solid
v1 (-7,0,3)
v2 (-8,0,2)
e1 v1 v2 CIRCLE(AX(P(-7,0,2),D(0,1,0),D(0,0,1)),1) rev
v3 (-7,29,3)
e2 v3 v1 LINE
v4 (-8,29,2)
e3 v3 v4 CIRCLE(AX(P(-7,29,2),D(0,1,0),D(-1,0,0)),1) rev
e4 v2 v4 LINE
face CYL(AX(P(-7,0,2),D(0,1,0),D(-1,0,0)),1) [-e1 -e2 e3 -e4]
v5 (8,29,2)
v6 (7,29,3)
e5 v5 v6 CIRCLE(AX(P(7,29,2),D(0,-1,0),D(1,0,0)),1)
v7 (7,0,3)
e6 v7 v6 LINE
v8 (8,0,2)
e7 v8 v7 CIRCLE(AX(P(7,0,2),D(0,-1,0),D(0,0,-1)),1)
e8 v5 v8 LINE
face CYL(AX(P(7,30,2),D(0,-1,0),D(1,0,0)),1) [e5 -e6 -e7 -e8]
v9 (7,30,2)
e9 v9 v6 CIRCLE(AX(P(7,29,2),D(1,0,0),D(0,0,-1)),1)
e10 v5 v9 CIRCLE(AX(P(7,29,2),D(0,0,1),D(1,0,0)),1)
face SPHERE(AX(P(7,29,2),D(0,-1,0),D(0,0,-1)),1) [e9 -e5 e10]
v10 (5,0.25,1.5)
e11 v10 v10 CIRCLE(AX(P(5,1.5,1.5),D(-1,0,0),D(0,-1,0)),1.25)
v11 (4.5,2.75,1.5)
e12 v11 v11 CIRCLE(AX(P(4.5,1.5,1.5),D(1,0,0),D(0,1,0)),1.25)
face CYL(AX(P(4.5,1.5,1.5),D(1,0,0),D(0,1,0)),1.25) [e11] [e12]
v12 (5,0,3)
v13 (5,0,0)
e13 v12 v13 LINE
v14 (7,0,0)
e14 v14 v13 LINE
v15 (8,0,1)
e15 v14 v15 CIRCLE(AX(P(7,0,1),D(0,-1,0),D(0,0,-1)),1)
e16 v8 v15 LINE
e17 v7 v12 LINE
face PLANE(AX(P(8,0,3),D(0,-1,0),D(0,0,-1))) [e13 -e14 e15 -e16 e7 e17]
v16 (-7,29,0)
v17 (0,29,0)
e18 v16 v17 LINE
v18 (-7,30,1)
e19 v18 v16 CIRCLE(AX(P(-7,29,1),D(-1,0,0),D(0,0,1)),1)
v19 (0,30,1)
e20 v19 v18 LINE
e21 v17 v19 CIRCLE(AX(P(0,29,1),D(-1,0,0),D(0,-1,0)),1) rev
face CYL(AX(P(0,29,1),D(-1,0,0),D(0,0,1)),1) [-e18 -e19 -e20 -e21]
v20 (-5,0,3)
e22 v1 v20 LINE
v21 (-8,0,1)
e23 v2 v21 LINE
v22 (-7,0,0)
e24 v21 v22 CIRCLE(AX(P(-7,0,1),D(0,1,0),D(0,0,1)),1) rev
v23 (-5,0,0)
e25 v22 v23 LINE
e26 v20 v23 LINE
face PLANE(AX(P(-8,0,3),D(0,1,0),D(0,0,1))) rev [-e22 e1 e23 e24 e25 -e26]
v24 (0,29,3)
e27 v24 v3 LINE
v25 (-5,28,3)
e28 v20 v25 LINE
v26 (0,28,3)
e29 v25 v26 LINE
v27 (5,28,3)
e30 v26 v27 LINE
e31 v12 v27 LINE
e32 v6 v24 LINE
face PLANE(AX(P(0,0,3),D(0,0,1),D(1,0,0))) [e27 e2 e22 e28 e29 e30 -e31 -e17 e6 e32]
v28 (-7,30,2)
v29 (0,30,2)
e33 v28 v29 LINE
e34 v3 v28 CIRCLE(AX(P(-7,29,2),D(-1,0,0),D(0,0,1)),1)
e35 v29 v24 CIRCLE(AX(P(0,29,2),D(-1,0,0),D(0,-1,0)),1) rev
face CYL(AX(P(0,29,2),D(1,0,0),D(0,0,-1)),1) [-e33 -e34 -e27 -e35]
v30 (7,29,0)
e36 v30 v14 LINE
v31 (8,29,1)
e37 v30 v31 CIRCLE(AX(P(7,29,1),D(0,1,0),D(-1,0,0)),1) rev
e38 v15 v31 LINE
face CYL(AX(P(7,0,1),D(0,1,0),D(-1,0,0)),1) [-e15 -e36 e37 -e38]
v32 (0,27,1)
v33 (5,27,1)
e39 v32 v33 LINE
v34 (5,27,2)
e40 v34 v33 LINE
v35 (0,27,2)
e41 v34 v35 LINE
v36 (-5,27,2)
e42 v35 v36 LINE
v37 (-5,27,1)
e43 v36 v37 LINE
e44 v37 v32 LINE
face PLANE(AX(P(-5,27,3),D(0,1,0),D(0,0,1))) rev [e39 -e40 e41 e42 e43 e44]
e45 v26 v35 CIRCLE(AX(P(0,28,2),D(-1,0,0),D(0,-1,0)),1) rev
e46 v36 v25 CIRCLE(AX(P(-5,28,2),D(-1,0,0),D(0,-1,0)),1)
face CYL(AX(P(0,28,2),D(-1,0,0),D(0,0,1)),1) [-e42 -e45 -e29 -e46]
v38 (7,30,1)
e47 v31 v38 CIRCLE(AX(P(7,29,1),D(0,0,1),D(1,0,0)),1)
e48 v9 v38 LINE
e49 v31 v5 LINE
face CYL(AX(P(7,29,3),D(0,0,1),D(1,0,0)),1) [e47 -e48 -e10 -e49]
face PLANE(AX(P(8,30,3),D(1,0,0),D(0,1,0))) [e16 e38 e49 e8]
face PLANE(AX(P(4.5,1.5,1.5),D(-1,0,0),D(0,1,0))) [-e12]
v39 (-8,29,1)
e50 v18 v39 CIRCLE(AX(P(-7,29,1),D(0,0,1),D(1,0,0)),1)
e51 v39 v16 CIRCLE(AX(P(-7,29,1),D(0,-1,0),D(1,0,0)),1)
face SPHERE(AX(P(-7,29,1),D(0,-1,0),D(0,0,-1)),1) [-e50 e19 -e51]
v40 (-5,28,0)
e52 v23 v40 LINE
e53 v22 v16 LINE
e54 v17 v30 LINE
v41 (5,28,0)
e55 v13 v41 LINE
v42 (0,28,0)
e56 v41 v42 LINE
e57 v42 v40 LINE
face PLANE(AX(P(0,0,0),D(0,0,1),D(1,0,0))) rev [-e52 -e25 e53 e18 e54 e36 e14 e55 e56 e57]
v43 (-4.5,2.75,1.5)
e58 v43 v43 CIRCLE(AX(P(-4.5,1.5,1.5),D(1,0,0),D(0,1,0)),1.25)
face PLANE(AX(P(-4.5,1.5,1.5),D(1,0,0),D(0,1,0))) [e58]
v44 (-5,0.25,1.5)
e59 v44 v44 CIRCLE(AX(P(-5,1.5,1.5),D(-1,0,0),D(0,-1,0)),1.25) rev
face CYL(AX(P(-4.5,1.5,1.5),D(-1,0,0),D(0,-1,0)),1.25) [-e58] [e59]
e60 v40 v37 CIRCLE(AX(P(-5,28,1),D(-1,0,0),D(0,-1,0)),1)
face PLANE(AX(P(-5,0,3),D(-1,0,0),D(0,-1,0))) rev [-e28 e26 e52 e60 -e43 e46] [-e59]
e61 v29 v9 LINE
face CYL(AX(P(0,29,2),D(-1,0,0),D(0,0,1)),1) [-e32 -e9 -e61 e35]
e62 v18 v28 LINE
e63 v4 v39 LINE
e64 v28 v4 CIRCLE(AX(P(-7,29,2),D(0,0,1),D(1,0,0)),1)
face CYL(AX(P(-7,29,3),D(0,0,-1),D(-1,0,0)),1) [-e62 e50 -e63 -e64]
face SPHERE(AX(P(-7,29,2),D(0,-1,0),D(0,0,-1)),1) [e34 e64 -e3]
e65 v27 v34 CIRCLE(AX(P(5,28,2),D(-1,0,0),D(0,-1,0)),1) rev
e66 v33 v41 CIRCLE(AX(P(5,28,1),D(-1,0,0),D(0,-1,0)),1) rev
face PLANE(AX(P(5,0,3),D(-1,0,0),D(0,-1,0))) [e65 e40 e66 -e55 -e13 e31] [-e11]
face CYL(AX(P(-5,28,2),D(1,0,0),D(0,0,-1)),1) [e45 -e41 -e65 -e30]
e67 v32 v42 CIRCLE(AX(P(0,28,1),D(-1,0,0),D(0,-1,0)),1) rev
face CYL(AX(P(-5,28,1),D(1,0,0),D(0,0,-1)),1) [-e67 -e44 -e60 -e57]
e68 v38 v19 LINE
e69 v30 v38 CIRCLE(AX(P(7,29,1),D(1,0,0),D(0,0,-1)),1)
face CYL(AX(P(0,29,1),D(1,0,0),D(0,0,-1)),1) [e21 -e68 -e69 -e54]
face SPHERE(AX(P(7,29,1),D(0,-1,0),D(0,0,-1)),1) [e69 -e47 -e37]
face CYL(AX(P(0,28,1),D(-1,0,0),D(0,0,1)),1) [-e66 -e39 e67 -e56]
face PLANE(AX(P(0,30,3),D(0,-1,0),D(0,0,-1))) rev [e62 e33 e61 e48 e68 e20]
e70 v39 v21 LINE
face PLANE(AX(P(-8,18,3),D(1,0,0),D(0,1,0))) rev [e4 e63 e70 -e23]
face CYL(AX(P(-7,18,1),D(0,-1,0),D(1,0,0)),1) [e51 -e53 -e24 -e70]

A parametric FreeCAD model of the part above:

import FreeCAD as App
import Part
import Sketcher
from FreeCAD import Vector
Q = App.Units.Quantity


def edges_at(feature, points):
    """Names of the edges that pass closest to the given points."""
    edges = feature.Shape.Edges
    near = lambda p: min(range(len(edges)), key=lambda i: edges[i].distToShape(Part.Vertex(*p))[0])
    return sorted({f"Edge{near(p) + 1}" for p in points})

doc = App.newDocument("Part")
params = doc.addObject("Spreadsheet::Sheet", "Params")
for row, (alias, value) in enumerate([
    ("sketch1_width", "8 mm"),
    ("sketch1_width2", "3 mm"),
    ("sketch1_height", "30 mm"),
    ("pad1_length", "3 mm"),
    ("sketch2_diameter", "2.5 mm"),
    ("pad2_length", "0.5 mm"),
    ("fillet_radius", "1 mm"),
    ("fillet2_radius", "1 mm"),
    ("fillet3_radius", "1 mm"),
    ("fillet4_radius", "1 mm"),
], start=1):
    params.set(f"A{row}", alias)
    params.set(f"B{row}", "=" + value)
    params.setAlias(f"B{row}", alias)

body = doc.addObject("PartDesign::Body", "Body")

sketch1 = body.newObject("Sketcher::SketchObject", "Sketch")
sketch1.AttachmentSupport = (doc.getObject("XY_Plane"), [""])
sketch1.MapMode = "FlatFace"
sketch1.addGeometry(Part.LineSegment(Vector(0, 30, 0), Vector(-8, 30, 0)), False)
sketch1.addGeometry(Part.LineSegment(Vector(-8, 30, 0), Vector(-8, 0, 0)), False)
sketch1.addGeometry(Part.LineSegment(Vector(-8, 0, 0), Vector(-5, 0, 0)), False)
sketch1.addGeometry(Part.LineSegment(Vector(-5, 0, 0), Vector(-5, 27, 0)), False)
sketch1.addGeometry(Part.LineSegment(Vector(-5, 27, 0), Vector(0, 27, 0)), False)
sketch1.addGeometry(Part.LineSegment(Vector(0, 27, 0), Vector(0, 30, 0)), False)
sketch1.addConstraint(Sketcher.Constraint("Coincident", 0, 2, 1, 1))
sketch1.addConstraint(Sketcher.Constraint("Coincident", 1, 2, 2, 1))
sketch1.addConstraint(Sketcher.Constraint("Coincident", 2, 2, 3, 1))
sketch1.addConstraint(Sketcher.Constraint("Coincident", 3, 2, 4, 1))
sketch1.addConstraint(Sketcher.Constraint("Coincident", 4, 2, 5, 1))
sketch1.addConstraint(Sketcher.Constraint("Coincident", 5, 2, 0, 1))
sketch1.addConstraint(Sketcher.Constraint("Horizontal", 0))
sketch1.addConstraint(Sketcher.Constraint("Vertical", 1))
sketch1.addConstraint(Sketcher.Constraint("Horizontal", 2))
sketch1.addConstraint(Sketcher.Constraint("Vertical", 3))
sketch1.addConstraint(Sketcher.Constraint("Horizontal", 4))
sketch1.addConstraint(Sketcher.Constraint("Vertical", 5))
sketch1.addConstraint(Sketcher.Constraint("PointOnObject", 1, 2, -1))
sketch1.addConstraint(Sketcher.Constraint("PointOnObject", 4, 2, -2))
sketch1.addConstraint(Sketcher.Constraint("Equal", 2, 5))
sketch1.addConstraint(Sketcher.Constraint("DistanceX", 0, 2, 0, 1, Q("8 mm")))
sketch1.addConstraint(Sketcher.Constraint("DistanceX", 2, 1, 2, 2, Q("3 mm")))
sketch1.addConstraint(Sketcher.Constraint("DistanceY", 1, 2, 1, 1, Q("30 mm")))
sketch1.setExpression("Constraints[15]", "Params.sketch1_width")
sketch1.setExpression("Constraints[16]", "Params.sketch1_width2")
sketch1.setExpression("Constraints[17]", "Params.sketch1_height")
pad1 = body.newObject("PartDesign::Pad", "Pad")
pad1.Profile = sketch1
pad1.setExpression("Length", "Params.pad1_length")

sketch2 = body.newObject("Sketcher::SketchObject", "Sketch001")
sketch2.AttachmentSupport = (doc.getObject("YZ_Plane"), [""])
sketch2.MapMode = "FlatFace"
sketch2.AttachmentOffset = App.Placement(Vector(0, 0, -5), App.Rotation())
sketch2.addGeometry(Part.Circle(Vector(1.5, 1.5, 0), Vector(0, 0, 1), 1.2), False)
sketch2.addConstraint(Sketcher.Constraint("Diameter", 0, Q("2.5 mm")))
sketch2.addConstraint(Sketcher.Constraint("DistanceX", -1, 1, 0, 3, Q("1.5 mm")))
sketch2.addConstraint(Sketcher.Constraint("DistanceY", -1, 1, 0, 3, Q("1.5 mm")))
sketch2.setExpression("Constraints[0]", "Params.sketch2_diameter")
pad2 = body.newObject("PartDesign::Pad", "Pad001")
pad2.Profile = sketch2
pad2.setExpression("Length", "Params.pad2_length")
doc.recompute()

fillet = body.newObject("PartDesign::Fillet", "Fillet")
fillet.Base = (pad2, edges_at(pad2, [(-8, 15, 3), (-8, 15, 0)]))
fillet.setExpression("Radius", "Params.fillet_radius")
doc.recompute()

fillet2 = body.newObject("PartDesign::Fillet", "Fillet001")
fillet2.Base = (fillet, edges_at(fillet, [
    (-8, 30, 1.5),
    (-2.5, 27, 3),
    (-7.707, 30, 2.707),
    (-7.707, 30, 0.293),
    (-2.5, 27, 0),
    (-3.5, 30, 3),
    (-3.5, 30, 0),
]))
fillet2.setExpression("Radius", "Params.fillet2_radius")
doc.recompute()

mirrored = body.newObject("PartDesign::Mirrored", "Mirrored")
mirrored.Originals = [pad1, pad2]
mirrored.MirrorPlane = (doc.getObject("YZ_Plane"), [""])
body.Tip = mirrored
doc.recompute()

fillet3 = body.newObject("PartDesign::Fillet", "Fillet002")
fillet3.Base = (mirrored, edges_at(mirrored, [(8, 15, 3), (8, 15, 0)]))
fillet3.setExpression("Radius", "Params.fillet3_radius")
doc.recompute()

fillet4 = body.newObject("PartDesign::Fillet", "Fillet003")
fillet4.Base = (fillet3, edges_at(fillet3, [
    (8, 30, 1.5),
    (2.5, 27, 3),
    (7.707, 30, 2.707),
    (7.707, 30, 0.293),
    (2.5, 27, 0),
    (3.5, 30, 3),
    (3.5, 30, 0),
]))
fillet4.setExpression("Radius", "Params.fillet4_radius")

doc.recompute()
